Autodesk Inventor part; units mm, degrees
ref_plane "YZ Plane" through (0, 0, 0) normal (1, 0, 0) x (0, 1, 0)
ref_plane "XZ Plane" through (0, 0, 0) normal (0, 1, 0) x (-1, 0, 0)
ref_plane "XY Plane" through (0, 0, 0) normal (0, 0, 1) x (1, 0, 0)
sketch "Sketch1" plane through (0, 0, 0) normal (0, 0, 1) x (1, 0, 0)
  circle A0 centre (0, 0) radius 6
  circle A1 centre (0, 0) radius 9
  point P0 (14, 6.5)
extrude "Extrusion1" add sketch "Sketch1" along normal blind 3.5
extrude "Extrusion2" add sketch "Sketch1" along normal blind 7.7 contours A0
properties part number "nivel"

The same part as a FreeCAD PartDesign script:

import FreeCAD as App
import Part
import Sketcher
from FreeCAD import Vector
Q = App.Units.Quantity

doc = App.newDocument("Part")
body = doc.addObject("PartDesign::Body", "Body")

# Sketch on XY plane
sketch1 = doc.addObject("Sketcher::SketchObject", "Sketch")
body.addObject(sketch1)
sketch1.AttachmentSupport = (doc.XY_Plane, [""])
sketch1.MapMode = "FlatFace"
sketch1.addGeometry(Part.Circle(Vector(0, 0, 0), Vector(0, 0, 1), 9), False)
sketch1.addGeometry(Part.Circle(Vector(0, 0, 0), Vector(0, 0, 1), 6), False)
sketch1.addConstraint(Sketcher.Constraint("Coincident", 0, 3, -1, 1))
sketch1.addConstraint(Sketcher.Constraint("Coincident", 1, 3, -1, 1))
sketch1.addConstraint(Sketcher.Constraint("Diameter", 0, Q("18 mm")))
sketch1.addConstraint(Sketcher.Constraint("Diameter", 1, Q("12 mm")))
pad1 = doc.addObject("PartDesign::Pad", "Pad")
body.addObject(pad1)
pad1.Profile = sketch1
pad1.Length = 3.5

# Sketch on XY plane
sketch2 = doc.addObject("Sketcher::SketchObject", "Sketch001")
body.addObject(sketch2)
sketch2.AttachmentSupport = (doc.XY_Plane, [""])
sketch2.MapMode = "FlatFace"
sketch2.addGeometry(Part.Circle(Vector(0, 0, 0), Vector(0, 0, 1), 6), False)
sketch2.addConstraint(Sketcher.Constraint("Coincident", 0, 3, -1, 1))
sketch2.addConstraint(Sketcher.Constraint("Diameter", 0, Q("12 mm")))
pad2 = doc.addObject("PartDesign::Pad", "Pad001")
body.addObject(pad2)
pad2.Profile = sketch2
pad2.Length = 7.7

doc.recompute()
